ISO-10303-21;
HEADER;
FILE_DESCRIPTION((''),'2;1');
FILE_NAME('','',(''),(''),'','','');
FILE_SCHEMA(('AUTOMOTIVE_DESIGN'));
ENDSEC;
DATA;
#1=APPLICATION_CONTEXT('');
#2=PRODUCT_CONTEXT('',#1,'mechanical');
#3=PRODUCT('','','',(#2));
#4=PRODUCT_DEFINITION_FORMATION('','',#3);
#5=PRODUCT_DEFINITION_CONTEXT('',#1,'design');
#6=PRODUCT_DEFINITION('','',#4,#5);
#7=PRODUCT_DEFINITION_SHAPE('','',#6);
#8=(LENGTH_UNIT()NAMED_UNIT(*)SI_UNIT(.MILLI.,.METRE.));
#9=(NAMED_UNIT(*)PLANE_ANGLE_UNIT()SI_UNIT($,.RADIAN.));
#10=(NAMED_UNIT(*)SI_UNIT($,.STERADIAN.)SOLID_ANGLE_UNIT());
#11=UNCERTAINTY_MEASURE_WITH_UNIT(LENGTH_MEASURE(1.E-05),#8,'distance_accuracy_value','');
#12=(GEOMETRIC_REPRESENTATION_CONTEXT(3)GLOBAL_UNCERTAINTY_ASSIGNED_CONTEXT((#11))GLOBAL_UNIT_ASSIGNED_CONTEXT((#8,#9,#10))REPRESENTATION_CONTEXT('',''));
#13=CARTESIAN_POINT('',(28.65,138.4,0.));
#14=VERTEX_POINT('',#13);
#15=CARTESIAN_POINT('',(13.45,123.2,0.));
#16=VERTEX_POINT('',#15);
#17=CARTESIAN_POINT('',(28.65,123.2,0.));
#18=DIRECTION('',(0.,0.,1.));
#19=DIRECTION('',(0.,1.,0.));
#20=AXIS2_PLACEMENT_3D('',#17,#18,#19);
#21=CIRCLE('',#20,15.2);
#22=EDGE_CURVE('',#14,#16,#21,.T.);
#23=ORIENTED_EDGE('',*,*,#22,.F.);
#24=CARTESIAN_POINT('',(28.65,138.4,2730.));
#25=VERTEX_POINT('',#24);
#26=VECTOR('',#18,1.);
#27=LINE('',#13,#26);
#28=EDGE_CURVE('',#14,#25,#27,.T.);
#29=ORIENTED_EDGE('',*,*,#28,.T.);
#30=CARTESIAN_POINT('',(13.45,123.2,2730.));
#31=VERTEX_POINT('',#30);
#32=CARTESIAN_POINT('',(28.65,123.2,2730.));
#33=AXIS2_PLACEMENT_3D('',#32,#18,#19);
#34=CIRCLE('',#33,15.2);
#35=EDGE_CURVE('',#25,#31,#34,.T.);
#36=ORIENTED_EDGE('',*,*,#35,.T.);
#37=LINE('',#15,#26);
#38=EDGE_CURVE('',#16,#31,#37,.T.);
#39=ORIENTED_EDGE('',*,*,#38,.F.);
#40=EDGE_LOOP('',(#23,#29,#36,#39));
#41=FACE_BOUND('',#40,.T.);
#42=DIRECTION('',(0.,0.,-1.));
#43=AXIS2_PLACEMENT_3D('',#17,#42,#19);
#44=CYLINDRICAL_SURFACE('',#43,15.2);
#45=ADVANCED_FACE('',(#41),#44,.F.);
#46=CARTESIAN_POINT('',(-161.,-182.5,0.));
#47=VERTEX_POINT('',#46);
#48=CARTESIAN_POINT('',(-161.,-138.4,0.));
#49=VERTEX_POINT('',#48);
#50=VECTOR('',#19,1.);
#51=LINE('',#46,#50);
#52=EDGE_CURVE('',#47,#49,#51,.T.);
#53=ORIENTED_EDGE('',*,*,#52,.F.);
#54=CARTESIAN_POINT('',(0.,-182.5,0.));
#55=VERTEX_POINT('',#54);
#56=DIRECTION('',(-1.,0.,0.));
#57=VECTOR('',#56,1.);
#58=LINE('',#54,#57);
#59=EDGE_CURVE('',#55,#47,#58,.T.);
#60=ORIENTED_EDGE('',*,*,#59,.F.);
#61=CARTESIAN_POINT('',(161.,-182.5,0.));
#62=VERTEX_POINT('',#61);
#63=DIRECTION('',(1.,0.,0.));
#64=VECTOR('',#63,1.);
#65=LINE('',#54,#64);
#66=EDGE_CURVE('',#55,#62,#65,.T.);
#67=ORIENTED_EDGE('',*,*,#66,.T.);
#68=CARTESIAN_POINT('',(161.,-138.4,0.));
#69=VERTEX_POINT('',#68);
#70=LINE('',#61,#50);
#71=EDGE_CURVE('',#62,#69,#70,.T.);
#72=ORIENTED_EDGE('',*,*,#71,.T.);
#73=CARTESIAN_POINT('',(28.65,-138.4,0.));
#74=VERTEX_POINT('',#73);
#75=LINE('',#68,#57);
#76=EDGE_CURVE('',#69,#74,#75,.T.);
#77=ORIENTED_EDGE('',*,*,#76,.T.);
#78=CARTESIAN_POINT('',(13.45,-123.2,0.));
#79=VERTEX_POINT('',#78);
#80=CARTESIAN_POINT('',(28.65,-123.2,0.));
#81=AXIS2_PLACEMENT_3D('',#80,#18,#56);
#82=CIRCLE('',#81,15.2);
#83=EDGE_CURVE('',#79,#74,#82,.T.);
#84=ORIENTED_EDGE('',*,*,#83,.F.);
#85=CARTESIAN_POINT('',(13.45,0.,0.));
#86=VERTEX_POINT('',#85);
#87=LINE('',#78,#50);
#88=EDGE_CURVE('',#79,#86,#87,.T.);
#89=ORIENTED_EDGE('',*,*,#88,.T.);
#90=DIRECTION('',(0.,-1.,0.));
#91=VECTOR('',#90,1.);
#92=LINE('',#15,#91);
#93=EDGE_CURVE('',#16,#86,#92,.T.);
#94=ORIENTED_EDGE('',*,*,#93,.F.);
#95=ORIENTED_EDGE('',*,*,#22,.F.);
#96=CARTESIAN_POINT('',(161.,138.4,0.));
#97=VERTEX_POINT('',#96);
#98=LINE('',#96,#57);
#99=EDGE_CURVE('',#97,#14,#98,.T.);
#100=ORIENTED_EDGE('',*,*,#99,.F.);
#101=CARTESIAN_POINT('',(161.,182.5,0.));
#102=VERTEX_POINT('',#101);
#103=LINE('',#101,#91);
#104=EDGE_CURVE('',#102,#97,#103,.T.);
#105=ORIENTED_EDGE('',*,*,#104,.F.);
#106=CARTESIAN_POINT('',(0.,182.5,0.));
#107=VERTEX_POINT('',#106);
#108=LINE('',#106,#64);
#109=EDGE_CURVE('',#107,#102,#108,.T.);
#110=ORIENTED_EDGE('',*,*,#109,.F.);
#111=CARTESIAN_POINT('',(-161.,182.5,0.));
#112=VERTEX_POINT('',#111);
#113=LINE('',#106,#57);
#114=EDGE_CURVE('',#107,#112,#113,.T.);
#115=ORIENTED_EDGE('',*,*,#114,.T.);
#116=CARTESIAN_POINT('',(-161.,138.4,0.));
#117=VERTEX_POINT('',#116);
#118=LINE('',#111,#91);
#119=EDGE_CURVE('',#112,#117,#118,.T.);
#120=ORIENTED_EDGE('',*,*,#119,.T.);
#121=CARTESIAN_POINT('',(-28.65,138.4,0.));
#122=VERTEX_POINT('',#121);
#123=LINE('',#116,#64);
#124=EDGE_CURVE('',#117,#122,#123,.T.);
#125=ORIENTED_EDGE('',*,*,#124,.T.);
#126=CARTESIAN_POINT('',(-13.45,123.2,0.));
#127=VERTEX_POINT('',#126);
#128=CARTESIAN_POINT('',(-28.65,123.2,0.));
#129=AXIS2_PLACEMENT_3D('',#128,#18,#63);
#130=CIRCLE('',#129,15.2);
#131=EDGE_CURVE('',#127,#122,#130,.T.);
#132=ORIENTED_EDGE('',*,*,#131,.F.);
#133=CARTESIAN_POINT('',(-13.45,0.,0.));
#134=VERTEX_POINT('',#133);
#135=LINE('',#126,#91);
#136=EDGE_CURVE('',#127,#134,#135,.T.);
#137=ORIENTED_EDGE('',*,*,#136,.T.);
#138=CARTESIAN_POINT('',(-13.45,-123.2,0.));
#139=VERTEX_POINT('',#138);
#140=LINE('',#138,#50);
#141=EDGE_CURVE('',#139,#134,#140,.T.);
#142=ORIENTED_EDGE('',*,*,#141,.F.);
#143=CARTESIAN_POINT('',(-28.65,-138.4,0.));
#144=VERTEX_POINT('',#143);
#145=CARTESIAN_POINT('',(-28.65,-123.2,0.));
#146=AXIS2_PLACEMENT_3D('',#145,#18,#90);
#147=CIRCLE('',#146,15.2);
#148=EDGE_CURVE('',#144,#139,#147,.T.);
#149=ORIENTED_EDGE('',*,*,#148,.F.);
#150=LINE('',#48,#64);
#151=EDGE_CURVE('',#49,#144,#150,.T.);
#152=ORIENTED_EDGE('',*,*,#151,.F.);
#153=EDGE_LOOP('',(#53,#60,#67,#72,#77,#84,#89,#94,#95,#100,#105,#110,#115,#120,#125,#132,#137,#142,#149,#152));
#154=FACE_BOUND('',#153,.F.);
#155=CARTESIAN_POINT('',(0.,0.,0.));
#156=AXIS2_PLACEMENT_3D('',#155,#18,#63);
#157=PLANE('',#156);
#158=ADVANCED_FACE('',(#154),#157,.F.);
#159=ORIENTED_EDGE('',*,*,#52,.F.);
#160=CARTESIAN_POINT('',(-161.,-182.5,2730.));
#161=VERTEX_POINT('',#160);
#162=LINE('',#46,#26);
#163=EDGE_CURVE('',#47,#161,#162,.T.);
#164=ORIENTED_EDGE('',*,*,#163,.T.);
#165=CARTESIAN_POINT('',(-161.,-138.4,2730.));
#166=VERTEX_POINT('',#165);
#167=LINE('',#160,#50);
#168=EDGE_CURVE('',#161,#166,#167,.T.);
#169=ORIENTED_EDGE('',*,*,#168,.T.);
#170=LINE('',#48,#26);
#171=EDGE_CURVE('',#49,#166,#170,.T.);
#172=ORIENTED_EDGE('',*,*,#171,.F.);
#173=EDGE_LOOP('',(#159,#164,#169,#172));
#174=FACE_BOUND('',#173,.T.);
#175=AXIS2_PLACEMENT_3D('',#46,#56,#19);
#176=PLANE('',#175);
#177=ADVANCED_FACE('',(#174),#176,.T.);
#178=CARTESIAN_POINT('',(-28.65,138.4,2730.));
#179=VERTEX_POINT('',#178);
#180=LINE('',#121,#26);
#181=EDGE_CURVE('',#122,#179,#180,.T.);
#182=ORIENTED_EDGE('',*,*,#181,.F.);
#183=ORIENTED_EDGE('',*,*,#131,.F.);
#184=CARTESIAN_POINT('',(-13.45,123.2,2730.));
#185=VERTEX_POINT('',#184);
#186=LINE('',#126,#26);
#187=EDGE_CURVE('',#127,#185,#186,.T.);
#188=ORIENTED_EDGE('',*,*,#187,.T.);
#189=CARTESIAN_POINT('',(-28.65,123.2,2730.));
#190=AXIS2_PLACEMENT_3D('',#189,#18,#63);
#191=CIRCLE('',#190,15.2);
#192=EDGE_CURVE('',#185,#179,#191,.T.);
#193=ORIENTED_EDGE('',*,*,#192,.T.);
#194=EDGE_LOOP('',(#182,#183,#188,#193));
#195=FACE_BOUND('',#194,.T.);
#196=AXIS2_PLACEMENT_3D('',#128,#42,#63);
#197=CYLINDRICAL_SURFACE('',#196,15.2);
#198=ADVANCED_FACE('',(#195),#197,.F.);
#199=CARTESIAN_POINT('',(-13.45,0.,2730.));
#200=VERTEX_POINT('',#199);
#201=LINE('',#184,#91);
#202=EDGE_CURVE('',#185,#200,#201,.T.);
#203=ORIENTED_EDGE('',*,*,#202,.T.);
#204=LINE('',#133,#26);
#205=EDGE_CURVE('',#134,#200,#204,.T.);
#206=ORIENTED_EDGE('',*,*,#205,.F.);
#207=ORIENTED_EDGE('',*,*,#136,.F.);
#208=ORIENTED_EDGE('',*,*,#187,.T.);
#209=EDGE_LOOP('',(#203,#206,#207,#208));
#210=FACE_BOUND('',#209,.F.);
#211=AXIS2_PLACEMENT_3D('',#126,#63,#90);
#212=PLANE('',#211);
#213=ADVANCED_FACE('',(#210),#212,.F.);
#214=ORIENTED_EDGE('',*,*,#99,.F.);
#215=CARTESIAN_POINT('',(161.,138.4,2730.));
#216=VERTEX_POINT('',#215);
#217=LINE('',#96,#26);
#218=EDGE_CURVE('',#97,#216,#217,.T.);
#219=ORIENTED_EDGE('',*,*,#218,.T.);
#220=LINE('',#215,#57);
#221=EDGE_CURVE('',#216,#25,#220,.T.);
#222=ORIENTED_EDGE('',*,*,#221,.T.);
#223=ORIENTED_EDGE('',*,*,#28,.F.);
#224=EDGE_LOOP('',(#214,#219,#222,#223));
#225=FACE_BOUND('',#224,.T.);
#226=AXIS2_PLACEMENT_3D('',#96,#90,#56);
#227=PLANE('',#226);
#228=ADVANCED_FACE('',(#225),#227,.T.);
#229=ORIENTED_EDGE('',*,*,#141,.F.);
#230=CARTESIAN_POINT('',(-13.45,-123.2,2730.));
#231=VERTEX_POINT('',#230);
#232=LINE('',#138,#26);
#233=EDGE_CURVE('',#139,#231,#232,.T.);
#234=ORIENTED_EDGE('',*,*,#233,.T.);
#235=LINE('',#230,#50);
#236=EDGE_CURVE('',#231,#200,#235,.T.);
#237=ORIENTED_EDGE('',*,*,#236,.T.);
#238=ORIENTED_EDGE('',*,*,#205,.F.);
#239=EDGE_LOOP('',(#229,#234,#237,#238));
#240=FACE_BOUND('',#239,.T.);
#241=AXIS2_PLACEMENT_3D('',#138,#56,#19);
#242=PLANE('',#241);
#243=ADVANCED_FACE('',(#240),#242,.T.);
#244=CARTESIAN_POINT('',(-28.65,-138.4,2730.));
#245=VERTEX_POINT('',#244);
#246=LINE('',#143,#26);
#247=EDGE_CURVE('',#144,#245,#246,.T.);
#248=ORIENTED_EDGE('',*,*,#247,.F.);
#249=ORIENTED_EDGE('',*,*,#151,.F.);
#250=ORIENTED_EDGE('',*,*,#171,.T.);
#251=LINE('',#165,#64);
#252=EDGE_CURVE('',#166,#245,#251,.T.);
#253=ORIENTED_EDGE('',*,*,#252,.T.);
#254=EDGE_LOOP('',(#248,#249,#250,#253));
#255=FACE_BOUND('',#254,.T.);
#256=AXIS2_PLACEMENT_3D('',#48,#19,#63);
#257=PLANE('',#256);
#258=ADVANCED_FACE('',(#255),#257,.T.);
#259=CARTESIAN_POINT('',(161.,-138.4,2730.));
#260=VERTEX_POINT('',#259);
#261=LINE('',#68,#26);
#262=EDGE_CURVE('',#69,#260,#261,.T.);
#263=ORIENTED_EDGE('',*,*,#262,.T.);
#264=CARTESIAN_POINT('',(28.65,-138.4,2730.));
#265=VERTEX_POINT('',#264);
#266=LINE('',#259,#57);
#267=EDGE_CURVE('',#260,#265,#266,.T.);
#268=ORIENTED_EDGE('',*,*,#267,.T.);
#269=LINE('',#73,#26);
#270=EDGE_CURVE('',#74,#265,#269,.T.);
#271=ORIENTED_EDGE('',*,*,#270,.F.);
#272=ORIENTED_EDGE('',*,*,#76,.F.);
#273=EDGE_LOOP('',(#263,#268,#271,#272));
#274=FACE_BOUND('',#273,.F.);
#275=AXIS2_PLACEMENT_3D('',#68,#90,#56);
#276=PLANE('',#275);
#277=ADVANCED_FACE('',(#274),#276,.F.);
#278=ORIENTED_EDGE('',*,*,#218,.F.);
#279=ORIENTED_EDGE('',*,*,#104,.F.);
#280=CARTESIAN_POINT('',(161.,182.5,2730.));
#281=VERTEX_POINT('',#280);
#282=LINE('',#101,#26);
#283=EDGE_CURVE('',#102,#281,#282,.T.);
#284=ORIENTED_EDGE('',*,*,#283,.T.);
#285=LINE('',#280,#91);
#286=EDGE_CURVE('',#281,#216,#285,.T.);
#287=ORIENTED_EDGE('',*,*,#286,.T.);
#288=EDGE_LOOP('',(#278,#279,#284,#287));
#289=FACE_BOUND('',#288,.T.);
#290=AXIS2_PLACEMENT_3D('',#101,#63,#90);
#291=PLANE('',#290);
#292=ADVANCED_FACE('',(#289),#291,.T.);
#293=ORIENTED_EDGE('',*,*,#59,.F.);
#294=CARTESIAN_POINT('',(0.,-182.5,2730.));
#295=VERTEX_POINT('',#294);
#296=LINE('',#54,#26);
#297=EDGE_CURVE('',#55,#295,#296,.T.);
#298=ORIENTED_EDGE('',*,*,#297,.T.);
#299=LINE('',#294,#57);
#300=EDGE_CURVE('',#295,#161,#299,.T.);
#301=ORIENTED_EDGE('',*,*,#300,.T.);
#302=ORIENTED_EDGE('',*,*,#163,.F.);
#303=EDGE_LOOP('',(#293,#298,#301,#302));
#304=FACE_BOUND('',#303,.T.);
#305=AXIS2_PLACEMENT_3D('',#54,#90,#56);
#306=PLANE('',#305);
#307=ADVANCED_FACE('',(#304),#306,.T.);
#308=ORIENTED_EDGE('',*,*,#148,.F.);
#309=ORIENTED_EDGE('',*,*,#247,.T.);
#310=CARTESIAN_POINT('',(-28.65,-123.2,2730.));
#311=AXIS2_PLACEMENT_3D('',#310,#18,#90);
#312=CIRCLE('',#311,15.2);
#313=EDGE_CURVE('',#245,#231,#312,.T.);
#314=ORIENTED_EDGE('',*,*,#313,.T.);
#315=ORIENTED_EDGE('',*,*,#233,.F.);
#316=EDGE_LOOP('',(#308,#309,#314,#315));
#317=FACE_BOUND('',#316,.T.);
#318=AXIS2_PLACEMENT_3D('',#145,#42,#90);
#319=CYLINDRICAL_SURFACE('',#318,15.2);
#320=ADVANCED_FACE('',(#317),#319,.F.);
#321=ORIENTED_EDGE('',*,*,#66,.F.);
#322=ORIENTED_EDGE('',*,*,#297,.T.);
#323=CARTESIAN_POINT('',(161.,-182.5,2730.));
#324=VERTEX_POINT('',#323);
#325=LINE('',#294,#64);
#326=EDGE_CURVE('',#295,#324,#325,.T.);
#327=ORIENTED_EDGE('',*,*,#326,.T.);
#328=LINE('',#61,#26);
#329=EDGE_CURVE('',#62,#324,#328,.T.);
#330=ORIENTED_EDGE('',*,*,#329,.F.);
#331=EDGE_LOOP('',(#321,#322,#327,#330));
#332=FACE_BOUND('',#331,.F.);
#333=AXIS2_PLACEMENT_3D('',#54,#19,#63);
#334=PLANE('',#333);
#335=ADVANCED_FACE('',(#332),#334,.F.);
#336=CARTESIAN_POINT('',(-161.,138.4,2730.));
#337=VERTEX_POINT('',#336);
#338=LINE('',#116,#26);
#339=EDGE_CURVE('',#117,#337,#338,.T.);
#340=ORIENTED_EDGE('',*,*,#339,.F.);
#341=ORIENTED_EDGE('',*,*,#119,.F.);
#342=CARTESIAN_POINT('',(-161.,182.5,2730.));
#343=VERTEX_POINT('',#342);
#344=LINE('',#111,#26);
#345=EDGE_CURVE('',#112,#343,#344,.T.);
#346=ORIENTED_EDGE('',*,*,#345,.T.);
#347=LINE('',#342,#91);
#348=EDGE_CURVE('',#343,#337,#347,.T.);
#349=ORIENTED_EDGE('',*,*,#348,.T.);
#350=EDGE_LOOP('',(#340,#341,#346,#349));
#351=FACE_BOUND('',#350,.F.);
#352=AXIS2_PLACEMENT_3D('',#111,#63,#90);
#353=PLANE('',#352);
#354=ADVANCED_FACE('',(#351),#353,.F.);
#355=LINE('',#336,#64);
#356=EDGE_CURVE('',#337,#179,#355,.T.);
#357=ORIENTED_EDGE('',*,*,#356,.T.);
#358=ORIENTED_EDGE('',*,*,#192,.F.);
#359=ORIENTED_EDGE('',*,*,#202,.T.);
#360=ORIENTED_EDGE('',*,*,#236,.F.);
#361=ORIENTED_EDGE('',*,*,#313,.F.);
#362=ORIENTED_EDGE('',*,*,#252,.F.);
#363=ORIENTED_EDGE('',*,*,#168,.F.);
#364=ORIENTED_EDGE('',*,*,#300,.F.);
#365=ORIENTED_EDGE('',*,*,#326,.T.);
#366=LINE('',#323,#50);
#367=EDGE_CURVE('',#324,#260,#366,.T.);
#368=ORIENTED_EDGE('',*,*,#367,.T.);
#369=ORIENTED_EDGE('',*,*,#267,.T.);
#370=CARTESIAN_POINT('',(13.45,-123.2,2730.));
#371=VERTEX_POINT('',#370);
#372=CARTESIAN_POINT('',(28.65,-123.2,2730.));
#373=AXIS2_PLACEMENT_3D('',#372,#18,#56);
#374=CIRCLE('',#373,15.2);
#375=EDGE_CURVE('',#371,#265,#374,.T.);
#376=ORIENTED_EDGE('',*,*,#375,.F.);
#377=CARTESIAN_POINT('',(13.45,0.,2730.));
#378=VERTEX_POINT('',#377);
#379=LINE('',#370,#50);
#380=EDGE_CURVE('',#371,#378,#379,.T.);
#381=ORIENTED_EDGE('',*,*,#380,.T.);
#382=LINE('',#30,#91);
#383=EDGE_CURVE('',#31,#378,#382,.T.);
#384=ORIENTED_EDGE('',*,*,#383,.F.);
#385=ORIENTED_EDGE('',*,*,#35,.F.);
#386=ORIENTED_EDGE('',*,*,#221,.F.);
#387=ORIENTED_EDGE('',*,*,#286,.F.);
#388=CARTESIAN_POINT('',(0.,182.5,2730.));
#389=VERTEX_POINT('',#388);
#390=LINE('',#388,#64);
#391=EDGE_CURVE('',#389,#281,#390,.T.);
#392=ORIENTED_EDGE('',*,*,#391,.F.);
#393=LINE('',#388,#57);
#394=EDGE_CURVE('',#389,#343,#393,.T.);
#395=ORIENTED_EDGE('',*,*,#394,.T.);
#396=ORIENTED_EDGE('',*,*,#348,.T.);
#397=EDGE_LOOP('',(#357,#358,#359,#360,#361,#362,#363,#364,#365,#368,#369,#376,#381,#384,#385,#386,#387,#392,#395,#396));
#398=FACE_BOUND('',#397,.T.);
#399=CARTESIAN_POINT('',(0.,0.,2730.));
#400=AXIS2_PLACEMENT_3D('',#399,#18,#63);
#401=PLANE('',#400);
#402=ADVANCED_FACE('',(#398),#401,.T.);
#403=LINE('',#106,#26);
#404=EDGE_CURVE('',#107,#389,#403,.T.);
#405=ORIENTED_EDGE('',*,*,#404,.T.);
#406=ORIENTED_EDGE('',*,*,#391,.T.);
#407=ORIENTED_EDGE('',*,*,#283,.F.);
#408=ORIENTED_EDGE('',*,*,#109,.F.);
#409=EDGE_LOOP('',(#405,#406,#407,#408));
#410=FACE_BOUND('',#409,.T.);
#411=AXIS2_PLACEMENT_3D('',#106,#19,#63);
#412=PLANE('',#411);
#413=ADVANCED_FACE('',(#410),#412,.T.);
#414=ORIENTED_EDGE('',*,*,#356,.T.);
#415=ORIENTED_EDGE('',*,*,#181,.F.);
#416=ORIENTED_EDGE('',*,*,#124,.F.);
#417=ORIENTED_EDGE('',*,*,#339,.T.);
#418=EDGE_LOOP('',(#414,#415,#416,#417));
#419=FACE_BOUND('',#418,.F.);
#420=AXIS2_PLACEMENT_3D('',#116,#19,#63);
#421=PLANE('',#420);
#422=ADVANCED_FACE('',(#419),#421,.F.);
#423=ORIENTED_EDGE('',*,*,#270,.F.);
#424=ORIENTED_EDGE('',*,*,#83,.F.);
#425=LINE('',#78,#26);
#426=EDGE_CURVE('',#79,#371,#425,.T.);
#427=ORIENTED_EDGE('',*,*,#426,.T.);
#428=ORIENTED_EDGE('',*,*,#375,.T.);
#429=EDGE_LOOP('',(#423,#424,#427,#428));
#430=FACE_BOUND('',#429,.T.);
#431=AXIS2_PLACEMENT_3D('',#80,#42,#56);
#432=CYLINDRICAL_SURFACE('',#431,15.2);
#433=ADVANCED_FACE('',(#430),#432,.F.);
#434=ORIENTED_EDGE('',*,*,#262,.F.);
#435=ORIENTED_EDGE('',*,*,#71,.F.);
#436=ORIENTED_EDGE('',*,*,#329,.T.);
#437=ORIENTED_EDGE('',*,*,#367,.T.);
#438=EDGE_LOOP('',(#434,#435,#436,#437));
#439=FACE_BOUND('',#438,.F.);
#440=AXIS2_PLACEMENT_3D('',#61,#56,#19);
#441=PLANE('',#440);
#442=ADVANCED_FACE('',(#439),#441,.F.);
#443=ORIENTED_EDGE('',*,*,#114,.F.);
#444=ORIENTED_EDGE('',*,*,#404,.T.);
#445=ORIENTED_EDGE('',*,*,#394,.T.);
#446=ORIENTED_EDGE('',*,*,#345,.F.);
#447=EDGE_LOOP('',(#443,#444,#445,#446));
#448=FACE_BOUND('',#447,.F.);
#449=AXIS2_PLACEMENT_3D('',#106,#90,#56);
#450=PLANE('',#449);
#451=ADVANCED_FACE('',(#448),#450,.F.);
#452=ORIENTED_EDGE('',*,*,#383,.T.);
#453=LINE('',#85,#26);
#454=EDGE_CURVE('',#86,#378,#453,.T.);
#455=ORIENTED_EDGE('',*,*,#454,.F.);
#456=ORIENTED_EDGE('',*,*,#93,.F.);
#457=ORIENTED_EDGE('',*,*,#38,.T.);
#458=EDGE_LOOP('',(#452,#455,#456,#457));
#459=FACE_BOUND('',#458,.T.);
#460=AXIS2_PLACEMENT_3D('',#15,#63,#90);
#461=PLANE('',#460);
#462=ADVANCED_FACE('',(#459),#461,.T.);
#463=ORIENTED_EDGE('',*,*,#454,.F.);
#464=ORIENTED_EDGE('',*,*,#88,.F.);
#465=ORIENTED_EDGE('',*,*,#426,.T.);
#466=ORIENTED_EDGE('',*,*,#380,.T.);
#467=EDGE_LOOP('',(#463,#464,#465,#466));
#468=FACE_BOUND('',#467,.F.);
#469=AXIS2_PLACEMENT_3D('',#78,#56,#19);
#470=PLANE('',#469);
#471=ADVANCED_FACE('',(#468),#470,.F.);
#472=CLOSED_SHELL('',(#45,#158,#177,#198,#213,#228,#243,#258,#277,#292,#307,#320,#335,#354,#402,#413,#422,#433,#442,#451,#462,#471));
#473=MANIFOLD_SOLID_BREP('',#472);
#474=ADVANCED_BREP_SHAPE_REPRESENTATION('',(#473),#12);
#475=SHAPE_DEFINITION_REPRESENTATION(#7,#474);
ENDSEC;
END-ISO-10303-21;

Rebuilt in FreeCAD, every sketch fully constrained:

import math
import FreeCAD as App
import Part
import Sketcher
Q = App.Units.Quantity

doc = App.newDocument("Part")
body = doc.addObject("PartDesign::Body", "Body")

# Sketch on XY plane
sketch1 = body.newObject("Sketcher::SketchObject", "Sketch")
sketch1.AttachmentSupport = (doc.getObject("XY_Plane"), [""])
sketch1.MapMode = "FlatFace"
sketch1.addGeometry([
    Part.LineSegment(App.Vector(-161, -138.4, 0), App.Vector(-161, -182.5, 0)),  # 0
    Part.LineSegment(App.Vector(-161, -182.5, 0), App.Vector(161, -182.5, 0)),  # 1
    Part.LineSegment(App.Vector(161, -182.5, 0), App.Vector(161, -138.4, 0)),  # 2
    Part.LineSegment(App.Vector(161, -138.4, 0), App.Vector(28.65, -138.4, 0)),  # 3
    Part.ArcOfCircle(Part.Circle(App.Vector(28.65, -123.2, 0), App.Vector(0, 0, 1), 15.2), math.radians(180), math.radians(270)),  # 4
    Part.LineSegment(App.Vector(13.45, -123.2, 0), App.Vector(13.45, 123.2, 0)),  # 5
    Part.ArcOfCircle(Part.Circle(App.Vector(28.65, 123.2, 0), App.Vector(0, 0, 1), 15.2), math.radians(90), math.radians(180)),  # 6
    Part.LineSegment(App.Vector(28.65, 138.4, 0), App.Vector(161, 138.4, 0)),  # 7
    Part.LineSegment(App.Vector(161, 138.4, 0), App.Vector(161, 182.5, 0)),  # 8
    Part.LineSegment(App.Vector(161, 182.5, 0), App.Vector(-161, 182.5, 0)),  # 9
    Part.LineSegment(App.Vector(-161, 182.5, 0), App.Vector(-161, 138.4, 0)),  # 10
    Part.LineSegment(App.Vector(-161, 138.4, 0), App.Vector(-28.65, 138.4, 0)),  # 11
    Part.ArcOfCircle(Part.Circle(App.Vector(-28.65, 123.2, 0), App.Vector(0, 0, 1), 15.2), math.radians(0), math.radians(90)),  # 12
    Part.LineSegment(App.Vector(-13.45, 123.2, 0), App.Vector(-13.45, -123.2, 0)),  # 13
    Part.ArcOfCircle(Part.Circle(App.Vector(-28.65, -123.2, 0), App.Vector(0, 0, 1), 15.2), math.radians(-90), math.radians(0)),  # 14
    Part.LineSegment(App.Vector(-28.65, -138.4, 0), App.Vector(-161, -138.4, 0)),  # 15
], False)
sketch1.addConstraint([
    Sketcher.Constraint("Coincident", 0, 2, 1, 1),
    Sketcher.Constraint("Coincident", 1, 2, 2, 1),
    Sketcher.Constraint("Coincident", 2, 2, 3, 1),
    Sketcher.Constraint("Tangent", 3, 2, 4, 2),
    Sketcher.Constraint("Tangent", 4, 1, 5, 1),
    Sketcher.Constraint("Tangent", 5, 2, 6, 2),
    Sketcher.Constraint("Tangent", 6, 1, 7, 1),
    Sketcher.Constraint("Coincident", 7, 2, 8, 1),
    Sketcher.Constraint("Coincident", 8, 2, 9, 1),
    Sketcher.Constraint("Coincident", 9, 2, 10, 1),
    Sketcher.Constraint("Coincident", 10, 2, 11, 1),
    Sketcher.Constraint("Tangent", 11, 2, 12, 2),
    Sketcher.Constraint("Tangent", 12, 1, 13, 1),
    Sketcher.Constraint("Tangent", 13, 2, 14, 2),
    Sketcher.Constraint("Tangent", 14, 1, 15, 1),
    Sketcher.Constraint("Coincident", 15, 2, 0, 1),
    Sketcher.Constraint("Vertical", 0),
    Sketcher.Constraint("Horizontal", 1),
    Sketcher.Constraint("Vertical", 2),
    Sketcher.Constraint("Horizontal", 3),
    Sketcher.Constraint("Vertical", 5),
    Sketcher.Constraint("Horizontal", 7),
    Sketcher.Constraint("Vertical", 8),
    Sketcher.Constraint("Horizontal", 9),
    Sketcher.Constraint("Vertical", 10),
    Sketcher.Constraint("Horizontal", 11),
    Sketcher.Constraint("Vertical", 13),
    Sketcher.Constraint("Horizontal", 15),
    Sketcher.Constraint("Equal", 4, 6),
    Sketcher.Constraint("Equal", 6, 12),
    Sketcher.Constraint("Equal", 12, 14),
    Sketcher.Constraint("Symmetric", 4, 3, 12, 3, -1, 1),
    Sketcher.Constraint("Symmetric", 0, 2, 8, 2, -1, 1),
    Sketcher.Constraint("Symmetric", 7, 2, 10, 2, -2),
    Sketcher.Constraint("Symmetric", 2, 2, 15, 2, -2),
    Sketcher.Constraint("Radius", 4, Q("15.2 mm")),
    Sketcher.Constraint("DistanceY", 0, 2, 0, 1, Q("44.1 mm")),
    Sketcher.Constraint("DistanceX", 0, 2, -1, 1, Q("161 mm")),
    Sketcher.Constraint("DistanceY", 0, 2, -1, 1, Q("182.5 mm")),
    Sketcher.Constraint("DistanceX", -1, 1, 4, 1, Q("13.45 mm")),
])
pad1 = body.newObject("PartDesign::Pad", "Pad")
pad1.Profile = sketch1
pad1.Length = 2730

doc.recompute()
